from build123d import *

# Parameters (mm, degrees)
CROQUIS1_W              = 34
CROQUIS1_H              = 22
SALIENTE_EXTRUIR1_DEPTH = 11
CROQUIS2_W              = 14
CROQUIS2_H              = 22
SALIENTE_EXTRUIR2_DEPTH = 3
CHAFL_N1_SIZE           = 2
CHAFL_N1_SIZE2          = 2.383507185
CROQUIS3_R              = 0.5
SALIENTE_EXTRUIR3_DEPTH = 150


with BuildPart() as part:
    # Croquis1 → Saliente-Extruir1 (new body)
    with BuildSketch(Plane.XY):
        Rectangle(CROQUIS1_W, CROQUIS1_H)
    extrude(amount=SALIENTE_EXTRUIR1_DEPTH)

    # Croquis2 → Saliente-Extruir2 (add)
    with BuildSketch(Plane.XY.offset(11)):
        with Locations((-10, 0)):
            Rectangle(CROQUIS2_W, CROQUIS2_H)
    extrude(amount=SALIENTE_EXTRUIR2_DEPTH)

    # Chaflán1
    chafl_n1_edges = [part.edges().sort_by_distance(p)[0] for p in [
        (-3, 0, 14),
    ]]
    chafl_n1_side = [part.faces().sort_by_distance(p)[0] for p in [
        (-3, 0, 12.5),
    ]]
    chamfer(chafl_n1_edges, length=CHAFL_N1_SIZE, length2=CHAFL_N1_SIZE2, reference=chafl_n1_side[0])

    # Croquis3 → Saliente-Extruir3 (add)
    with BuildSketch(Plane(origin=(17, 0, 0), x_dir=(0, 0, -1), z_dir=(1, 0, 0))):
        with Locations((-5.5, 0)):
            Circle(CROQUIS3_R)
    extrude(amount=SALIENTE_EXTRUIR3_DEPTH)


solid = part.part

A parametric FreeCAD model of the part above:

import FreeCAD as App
import Part
import Sketcher
from FreeCAD import Vector


def edges_at(feature, points):
    """Names of the edges that pass closest to the given points."""
    edges = feature.Shape.Edges
    near = lambda p: min(range(len(edges)), key=lambda i: edges[i].distToShape(Part.Vertex(*p))[0])
    return sorted({f"Edge{near(p) + 1}" for p in points})

doc = App.newDocument("Part")
body = doc.addObject("PartDesign::Body", "Body")

# Sketch on XY plane
sketch1 = doc.addObject("Sketcher::SketchObject", "Sketch")
body.addObject(sketch1)
sketch1.AttachmentSupport = (doc.XY_Plane, [""])
sketch1.MapMode = "FlatFace"
sketch1.addGeometry([
    Part.LineSegment(Vector(-17, 11, 0), Vector(-17, -11, 0)),
    Part.LineSegment(Vector(-17, -11, 0), Vector(17, -11, 0)),
    Part.LineSegment(Vector(17, -11, 0), Vector(17, 11, 0)),
    Part.LineSegment(Vector(17, 11, 0), Vector(-17, 11, 0)),
], False)
sketch1.addConstraint([
    Sketcher.Constraint("Coincident", 0, 2, 1, 1),
    Sketcher.Constraint("Coincident", 1, 2, 2, 1),
    Sketcher.Constraint("Coincident", 2, 2, 3, 1),
    Sketcher.Constraint("Coincident", 3, 2, 0, 1),
    Sketcher.Constraint("Vertical", 0),
    Sketcher.Constraint("Horizontal", 1),
    Sketcher.Constraint("Vertical", 2),
    Sketcher.Constraint("Horizontal", 3),
    Sketcher.Constraint("Symmetric", 0, 2, 2, 2, -1, 1),
    Sketcher.Constraint("DistanceX", 1, 1, 1, 2, 34.0),
    Sketcher.Constraint("DistanceY", 0, 2, 0, 1, 22.0),
])
pad1 = doc.addObject("PartDesign::Pad", "Pad")
body.addObject(pad1)
pad1.Profile = sketch1
pad1.Length = 11

# Sketch on XY plane
sketch2 = doc.addObject("Sketcher::SketchObject", "Sketch001")
body.addObject(sketch2)
sketch2.AttachmentSupport = (doc.XY_Plane, [""])
sketch2.MapMode = "FlatFace"
sketch2.AttachmentOffset = App.Placement(Vector(0, 0, 11), App.Rotation())
sketch2.addGeometry([
    Part.LineSegment(Vector(-17, 11, 0), Vector(-17, -11, 0)),
    Part.LineSegment(Vector(-17, -11, 0), Vector(-3, -11, 0)),
    Part.LineSegment(Vector(-3, -11, 0), Vector(-3, 11, 0)),
    Part.LineSegment(Vector(-3, 11, 0), Vector(-17, 11, 0)),
], False)
sketch2.addConstraint([
    Sketcher.Constraint("Coincident", 0, 2, 1, 1),
    Sketcher.Constraint("Coincident", 1, 2, 2, 1),
    Sketcher.Constraint("Coincident", 2, 2, 3, 1),
    Sketcher.Constraint("Coincident", 3, 2, 0, 1),
    Sketcher.Constraint("Vertical", 0),
    Sketcher.Constraint("Horizontal", 1),
    Sketcher.Constraint("Vertical", 2),
    Sketcher.Constraint("Horizontal", 3),
    Sketcher.Constraint("DistanceX", 1, 1, 1, 2, 14.0),
    Sketcher.Constraint("DistanceY", 0, 2, 0, 1, 22.0),
    Sketcher.Constraint("DistanceX", 0, 2, -1, 1, 17.0),
    Sketcher.Constraint("DistanceY", 0, 2, -1, 1, 11.0),
])
pad2 = doc.addObject("PartDesign::Pad", "Pad001")
body.addObject(pad2)
pad2.Profile = sketch2
pad2.Length = 3
doc.recompute()

chamfer = doc.addObject("PartDesign::Chamfer", "Chamfer")
body.addObject(chamfer)
chamfer.Base = (pad2, edges_at(pad2, [(-3, 0, 14)]))
chamfer.ChamferType = "Two distances"
chamfer.Size = 2
chamfer.Size2 = 2.383507

# Sketch on YZ plane
sketch3 = doc.addObject("Sketcher::SketchObject", "Sketch002")
body.addObject(sketch3)
sketch3.AttachmentSupport = (doc.YZ_Plane, [""])
sketch3.MapMode = "FlatFace"
sketch3.AttachmentOffset = App.Placement(Vector(0, 0, 17), App.Rotation())
sketch3.addGeometry(Part.Circle(Vector(0, 5.5, 0), Vector(0, 0, 1), 0.5), False)
sketch3.addConstraint([
    Sketcher.Constraint("PointOnObject", 0, 3, -2),
    Sketcher.Constraint("Diameter", 0, 1.0),
    Sketcher.Constraint("DistanceY", -1, 1, 0, 3, 5.5),
])
pad3 = doc.addObject("PartDesign::Pad", "Pad002")
body.addObject(pad3)
pad3.Profile = sketch3
pad3.Length = 150

doc.recompute()
